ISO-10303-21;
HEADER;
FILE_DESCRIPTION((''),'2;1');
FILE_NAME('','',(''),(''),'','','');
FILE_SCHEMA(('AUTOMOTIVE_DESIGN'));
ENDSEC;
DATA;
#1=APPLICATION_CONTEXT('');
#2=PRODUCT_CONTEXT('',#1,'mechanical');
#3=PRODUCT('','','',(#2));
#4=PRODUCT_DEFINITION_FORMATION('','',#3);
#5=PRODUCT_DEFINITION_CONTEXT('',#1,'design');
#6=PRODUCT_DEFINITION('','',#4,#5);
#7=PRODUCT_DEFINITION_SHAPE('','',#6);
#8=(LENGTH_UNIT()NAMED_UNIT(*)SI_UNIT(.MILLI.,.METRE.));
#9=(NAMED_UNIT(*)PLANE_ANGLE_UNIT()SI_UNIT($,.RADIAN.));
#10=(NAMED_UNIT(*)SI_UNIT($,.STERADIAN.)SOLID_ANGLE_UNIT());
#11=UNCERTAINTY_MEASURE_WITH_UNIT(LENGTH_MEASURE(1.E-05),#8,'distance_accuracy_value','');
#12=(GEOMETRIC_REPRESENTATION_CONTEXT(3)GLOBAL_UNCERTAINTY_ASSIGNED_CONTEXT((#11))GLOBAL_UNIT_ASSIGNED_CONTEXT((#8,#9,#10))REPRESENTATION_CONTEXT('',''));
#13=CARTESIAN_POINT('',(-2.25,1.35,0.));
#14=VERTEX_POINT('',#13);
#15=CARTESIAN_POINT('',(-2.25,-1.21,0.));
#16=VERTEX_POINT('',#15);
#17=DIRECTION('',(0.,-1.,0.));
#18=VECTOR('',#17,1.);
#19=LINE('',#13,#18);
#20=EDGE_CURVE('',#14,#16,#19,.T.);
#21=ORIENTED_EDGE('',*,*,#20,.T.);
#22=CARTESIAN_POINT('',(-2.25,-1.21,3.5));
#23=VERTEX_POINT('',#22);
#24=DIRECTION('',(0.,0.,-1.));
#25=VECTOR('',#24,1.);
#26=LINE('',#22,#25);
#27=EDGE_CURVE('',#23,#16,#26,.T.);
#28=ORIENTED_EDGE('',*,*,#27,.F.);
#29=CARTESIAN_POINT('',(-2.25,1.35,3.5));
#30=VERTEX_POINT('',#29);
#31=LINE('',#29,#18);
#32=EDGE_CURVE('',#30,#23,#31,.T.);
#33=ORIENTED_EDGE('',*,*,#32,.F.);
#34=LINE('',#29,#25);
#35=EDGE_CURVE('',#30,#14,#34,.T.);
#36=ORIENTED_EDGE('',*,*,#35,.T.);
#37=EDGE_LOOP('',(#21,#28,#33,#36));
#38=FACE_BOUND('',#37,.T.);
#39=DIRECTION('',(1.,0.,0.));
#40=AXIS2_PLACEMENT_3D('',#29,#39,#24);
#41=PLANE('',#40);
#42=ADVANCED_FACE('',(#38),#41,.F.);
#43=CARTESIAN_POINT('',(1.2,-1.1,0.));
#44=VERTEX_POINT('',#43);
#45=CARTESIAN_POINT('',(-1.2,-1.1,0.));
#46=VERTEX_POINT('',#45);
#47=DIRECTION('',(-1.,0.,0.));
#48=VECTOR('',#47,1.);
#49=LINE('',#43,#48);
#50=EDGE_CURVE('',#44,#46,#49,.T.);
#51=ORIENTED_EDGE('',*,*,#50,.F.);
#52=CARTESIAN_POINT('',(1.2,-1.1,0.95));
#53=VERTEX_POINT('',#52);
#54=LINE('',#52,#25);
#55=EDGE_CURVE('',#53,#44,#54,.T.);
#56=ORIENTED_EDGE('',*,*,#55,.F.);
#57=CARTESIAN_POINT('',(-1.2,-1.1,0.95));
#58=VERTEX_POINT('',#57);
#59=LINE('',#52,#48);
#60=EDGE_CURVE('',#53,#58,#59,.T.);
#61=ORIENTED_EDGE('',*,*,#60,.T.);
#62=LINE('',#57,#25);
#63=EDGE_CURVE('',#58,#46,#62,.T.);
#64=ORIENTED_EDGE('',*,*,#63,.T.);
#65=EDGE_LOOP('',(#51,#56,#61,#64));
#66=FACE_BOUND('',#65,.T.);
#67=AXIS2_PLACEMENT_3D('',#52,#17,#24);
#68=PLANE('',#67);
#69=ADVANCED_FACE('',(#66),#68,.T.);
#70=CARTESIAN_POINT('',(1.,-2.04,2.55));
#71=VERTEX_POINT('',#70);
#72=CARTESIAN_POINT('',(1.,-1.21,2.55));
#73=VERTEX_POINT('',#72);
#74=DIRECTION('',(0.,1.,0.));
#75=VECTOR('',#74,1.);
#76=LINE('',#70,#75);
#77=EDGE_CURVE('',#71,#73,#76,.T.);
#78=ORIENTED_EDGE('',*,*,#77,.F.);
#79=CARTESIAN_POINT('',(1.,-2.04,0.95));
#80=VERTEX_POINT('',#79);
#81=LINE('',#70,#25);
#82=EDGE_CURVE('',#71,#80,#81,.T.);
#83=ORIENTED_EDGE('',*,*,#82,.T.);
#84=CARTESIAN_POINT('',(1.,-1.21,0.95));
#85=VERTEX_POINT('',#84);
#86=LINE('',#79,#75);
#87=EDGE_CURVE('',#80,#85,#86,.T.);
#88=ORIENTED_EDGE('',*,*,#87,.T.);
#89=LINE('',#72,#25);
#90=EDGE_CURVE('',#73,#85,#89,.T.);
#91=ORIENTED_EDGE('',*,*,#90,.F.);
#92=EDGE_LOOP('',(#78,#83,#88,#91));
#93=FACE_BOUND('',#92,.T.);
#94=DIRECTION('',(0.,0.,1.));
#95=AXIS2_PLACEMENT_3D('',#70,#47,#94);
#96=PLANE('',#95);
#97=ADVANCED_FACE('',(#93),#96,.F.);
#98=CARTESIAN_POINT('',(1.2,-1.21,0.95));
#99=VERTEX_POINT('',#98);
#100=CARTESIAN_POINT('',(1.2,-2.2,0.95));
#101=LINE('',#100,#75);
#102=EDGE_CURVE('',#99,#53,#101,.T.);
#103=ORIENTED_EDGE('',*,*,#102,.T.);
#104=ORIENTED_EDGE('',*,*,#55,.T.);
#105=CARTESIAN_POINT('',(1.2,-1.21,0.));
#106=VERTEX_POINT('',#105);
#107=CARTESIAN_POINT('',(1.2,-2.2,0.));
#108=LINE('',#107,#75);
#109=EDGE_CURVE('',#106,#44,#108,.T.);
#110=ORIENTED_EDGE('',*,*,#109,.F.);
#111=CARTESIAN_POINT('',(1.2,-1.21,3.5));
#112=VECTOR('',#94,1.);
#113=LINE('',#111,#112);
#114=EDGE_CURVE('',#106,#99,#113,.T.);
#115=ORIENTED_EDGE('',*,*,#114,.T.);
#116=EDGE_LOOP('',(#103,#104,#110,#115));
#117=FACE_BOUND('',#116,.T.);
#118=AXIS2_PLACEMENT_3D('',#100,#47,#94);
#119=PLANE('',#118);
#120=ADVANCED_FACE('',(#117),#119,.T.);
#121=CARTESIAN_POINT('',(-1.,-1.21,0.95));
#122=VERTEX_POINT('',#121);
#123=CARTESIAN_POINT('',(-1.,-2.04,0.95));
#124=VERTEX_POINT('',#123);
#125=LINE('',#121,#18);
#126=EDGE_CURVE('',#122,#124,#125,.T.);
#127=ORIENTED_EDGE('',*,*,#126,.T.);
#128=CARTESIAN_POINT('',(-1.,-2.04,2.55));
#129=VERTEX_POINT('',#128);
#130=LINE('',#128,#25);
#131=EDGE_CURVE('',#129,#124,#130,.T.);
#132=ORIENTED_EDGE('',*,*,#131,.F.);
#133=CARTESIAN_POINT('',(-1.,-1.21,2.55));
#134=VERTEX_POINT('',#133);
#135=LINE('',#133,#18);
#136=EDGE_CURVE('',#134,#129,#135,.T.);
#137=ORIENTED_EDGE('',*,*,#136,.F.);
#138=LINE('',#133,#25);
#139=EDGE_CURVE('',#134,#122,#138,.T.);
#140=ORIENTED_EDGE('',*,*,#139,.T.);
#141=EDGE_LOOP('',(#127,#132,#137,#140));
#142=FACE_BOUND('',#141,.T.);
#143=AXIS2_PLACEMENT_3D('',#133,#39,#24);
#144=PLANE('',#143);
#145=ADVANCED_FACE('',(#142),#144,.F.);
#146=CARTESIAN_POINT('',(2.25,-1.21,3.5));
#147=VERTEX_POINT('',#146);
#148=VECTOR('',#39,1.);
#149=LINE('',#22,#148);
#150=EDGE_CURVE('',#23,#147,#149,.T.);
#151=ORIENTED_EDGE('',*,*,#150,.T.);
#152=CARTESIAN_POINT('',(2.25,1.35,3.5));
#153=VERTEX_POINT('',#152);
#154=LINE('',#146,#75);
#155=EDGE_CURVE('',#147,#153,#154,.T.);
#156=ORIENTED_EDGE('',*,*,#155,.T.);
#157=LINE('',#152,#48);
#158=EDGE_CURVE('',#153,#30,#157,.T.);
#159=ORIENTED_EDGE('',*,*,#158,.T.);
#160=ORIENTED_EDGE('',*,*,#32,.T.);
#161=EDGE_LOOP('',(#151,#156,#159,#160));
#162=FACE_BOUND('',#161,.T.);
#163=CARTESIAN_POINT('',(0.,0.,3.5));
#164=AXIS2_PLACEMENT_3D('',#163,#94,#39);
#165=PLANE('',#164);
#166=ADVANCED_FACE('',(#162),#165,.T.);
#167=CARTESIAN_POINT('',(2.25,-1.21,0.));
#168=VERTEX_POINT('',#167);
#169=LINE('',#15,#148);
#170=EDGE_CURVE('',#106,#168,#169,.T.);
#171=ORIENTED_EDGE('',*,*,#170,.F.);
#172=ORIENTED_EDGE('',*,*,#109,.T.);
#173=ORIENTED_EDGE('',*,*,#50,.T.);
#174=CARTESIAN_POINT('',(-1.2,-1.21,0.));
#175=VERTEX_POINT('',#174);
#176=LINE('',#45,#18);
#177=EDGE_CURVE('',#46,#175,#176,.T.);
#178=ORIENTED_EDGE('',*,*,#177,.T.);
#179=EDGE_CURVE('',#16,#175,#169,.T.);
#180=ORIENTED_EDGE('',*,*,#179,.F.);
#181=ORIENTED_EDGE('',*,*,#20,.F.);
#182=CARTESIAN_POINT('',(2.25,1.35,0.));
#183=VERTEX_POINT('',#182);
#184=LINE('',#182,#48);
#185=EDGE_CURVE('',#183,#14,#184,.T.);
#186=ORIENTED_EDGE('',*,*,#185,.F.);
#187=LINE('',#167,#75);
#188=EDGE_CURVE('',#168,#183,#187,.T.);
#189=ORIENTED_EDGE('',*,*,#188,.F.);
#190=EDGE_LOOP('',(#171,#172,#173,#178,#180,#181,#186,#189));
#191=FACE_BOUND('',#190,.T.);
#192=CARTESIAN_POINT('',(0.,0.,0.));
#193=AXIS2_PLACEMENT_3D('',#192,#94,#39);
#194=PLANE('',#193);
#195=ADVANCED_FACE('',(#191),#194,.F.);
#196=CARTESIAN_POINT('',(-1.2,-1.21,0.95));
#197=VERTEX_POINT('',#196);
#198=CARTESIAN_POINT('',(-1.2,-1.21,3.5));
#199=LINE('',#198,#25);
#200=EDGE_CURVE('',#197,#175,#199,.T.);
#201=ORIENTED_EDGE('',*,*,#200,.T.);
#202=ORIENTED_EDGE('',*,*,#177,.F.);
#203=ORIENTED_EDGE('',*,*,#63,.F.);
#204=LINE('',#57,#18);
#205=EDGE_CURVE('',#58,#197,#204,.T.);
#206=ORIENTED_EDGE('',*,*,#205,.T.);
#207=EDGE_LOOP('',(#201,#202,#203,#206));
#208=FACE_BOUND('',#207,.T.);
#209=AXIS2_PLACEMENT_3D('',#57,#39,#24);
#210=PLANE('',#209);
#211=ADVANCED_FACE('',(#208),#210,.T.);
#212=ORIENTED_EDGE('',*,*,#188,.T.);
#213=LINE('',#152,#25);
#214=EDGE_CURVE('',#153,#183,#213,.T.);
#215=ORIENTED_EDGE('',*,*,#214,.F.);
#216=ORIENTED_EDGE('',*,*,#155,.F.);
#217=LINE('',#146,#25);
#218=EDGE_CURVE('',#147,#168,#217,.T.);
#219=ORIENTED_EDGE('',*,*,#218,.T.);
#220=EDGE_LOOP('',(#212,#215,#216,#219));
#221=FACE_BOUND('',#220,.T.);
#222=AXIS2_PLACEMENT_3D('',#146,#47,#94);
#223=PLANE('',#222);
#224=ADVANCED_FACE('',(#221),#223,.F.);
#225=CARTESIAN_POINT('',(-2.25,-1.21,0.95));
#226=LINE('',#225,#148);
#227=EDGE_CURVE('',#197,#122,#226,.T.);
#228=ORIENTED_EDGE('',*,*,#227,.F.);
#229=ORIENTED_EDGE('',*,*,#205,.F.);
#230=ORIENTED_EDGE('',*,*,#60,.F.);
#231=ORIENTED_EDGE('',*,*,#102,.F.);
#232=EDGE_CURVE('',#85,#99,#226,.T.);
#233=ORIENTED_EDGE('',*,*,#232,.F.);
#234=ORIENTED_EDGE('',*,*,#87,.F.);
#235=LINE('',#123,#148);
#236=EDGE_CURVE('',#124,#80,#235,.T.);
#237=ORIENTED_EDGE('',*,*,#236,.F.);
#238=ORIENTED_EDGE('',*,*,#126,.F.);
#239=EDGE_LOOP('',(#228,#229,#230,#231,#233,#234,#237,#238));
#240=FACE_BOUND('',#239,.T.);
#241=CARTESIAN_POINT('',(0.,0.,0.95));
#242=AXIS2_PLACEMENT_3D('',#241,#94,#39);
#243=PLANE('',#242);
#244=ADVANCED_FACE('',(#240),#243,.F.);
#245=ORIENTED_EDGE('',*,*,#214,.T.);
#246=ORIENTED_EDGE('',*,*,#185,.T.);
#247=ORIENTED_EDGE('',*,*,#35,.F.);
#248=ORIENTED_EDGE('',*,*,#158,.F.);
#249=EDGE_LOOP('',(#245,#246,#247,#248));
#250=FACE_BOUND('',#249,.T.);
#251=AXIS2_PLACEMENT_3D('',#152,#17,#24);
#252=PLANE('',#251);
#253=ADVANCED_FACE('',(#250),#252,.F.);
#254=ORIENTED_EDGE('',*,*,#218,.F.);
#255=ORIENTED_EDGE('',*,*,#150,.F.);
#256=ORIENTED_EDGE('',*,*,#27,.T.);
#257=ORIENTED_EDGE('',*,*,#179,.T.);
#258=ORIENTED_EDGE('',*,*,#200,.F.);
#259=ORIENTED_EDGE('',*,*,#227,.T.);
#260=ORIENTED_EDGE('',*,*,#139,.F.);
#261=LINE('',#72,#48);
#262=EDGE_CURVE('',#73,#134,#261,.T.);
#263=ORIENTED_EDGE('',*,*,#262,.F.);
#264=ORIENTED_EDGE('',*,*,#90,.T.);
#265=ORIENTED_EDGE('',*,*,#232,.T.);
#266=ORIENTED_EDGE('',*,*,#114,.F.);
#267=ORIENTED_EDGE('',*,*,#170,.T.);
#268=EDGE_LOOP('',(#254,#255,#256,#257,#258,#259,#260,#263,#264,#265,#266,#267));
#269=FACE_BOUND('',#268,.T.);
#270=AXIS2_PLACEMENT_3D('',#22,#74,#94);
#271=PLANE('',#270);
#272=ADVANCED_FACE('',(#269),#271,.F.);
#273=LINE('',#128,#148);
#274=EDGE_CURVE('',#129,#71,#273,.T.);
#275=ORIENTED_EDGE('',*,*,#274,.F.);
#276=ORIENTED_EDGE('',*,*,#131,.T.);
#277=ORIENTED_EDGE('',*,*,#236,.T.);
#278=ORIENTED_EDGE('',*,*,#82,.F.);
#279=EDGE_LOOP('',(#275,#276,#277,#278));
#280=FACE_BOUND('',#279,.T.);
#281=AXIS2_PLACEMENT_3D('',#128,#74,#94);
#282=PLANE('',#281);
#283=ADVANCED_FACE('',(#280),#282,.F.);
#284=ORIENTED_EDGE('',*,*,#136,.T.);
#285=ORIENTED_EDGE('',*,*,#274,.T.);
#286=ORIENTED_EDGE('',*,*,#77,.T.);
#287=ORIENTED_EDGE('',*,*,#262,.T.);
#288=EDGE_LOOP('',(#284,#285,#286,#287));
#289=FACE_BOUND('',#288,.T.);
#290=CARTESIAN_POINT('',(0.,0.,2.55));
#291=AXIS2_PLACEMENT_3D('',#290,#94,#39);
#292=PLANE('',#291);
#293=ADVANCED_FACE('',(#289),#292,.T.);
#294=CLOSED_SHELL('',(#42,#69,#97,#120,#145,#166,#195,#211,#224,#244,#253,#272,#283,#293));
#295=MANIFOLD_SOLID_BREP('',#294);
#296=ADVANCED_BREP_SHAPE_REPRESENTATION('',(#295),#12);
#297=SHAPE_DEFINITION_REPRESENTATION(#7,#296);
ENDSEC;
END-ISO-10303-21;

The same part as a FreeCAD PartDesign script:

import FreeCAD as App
import Part
import Sketcher

V = App.Vector

doc = App.newDocument("Part")
params = doc.addObject("Spreadsheet::Sheet", "Params")
for row, (alias, value) in enumerate([
    ("sketch1_width", "4.5 mm"),
    ("sketch1_height", "2.56 mm"),
    ("pad1_length", "3.5 mm"),
    ("sketch2_width", "2 mm"),
    ("sketch2_height", "0.83 mm"),
    ("pad2_length", "2.55 mm"),
    ("sketch3_width", "2.4 mm"),
    ("sketch3_height", "1.1 mm"),
    ("pocket1_length", "0.95 mm"),
], start=1):
    params.set(f"A{row}", alias)
    params.set(f"B{row}", "=" + value)
    params.setAlias(f"B{row}", alias)

body = doc.addObject("PartDesign::Body", "Body")

sketch1 = body.newObject("Sketcher::SketchObject", "Sketch")
sketch1.AttachmentSupport = (doc.getObject("XY_Plane"), [""])
sketch1.MapMode = "FlatFace"
sketch1.addGeometry(Part.LineSegment(V(-2.2, 1.4, 0), V(-2.2, -1.2, 0)), False)
sketch1.addGeometry(Part.LineSegment(V(-2.2, -1.2, 0), V(2.2, -1.2, 0)), False)
sketch1.addGeometry(Part.LineSegment(V(2.2, -1.2, 0), V(2.2, 1.4, 0)), False)
sketch1.addGeometry(Part.LineSegment(V(2.2, 1.4, 0), V(-2.2, 1.4, 0)), False)
sketch1.addConstraint(Sketcher.Constraint("Coincident", 0, 2, 1, 1))
sketch1.addConstraint(Sketcher.Constraint("Coincident", 1, 2, 2, 1))
sketch1.addConstraint(Sketcher.Constraint("Coincident", 2, 2, 3, 1))
sketch1.addConstraint(Sketcher.Constraint("Coincident", 3, 2, 0, 1))
sketch1.addConstraint(Sketcher.Constraint("Vertical", 0))
sketch1.addConstraint(Sketcher.Constraint("Horizontal", 1))
sketch1.addConstraint(Sketcher.Constraint("Vertical", 2))
sketch1.addConstraint(Sketcher.Constraint("Horizontal", 3))
sketch1.addConstraint(Sketcher.Constraint("DistanceX", 1, 1, 1, 2, 4.5))
sketch1.addConstraint(Sketcher.Constraint("DistanceY", 0, 2, 0, 1, 2.56))
sketch1.addConstraint(Sketcher.Constraint("DistanceX", 0, 2, -1, 1, 2.25))
sketch1.addConstraint(Sketcher.Constraint("DistanceY", 0, 2, -1, 1, 1.21))
sketch1.setExpression("Constraints[8]", "Params.sketch1_width")
sketch1.setExpression("Constraints[9]", "Params.sketch1_height")
pad1 = body.newObject("PartDesign::Pad", "Pad")
pad1.Profile = sketch1
pad1.setExpression("Length", "Params.pad1_length")

sketch2 = body.newObject("Sketcher::SketchObject", "Sketch001")
sketch2.AttachmentSupport = (doc.getObject("XY_Plane"), [""])
sketch2.MapMode = "FlatFace"
sketch2.addGeometry(Part.LineSegment(V(-1, -1.2, 0), V(-1, -2, 0)), False)
sketch2.addGeometry(Part.LineSegment(V(-1, -2, 0), V(1, -2, 0)), False)
sketch2.addGeometry(Part.LineSegment(V(1, -2, 0), V(1, -1.2, 0)), False)
sketch2.addGeometry(Part.LineSegment(V(1, -1.2, 0), V(-1, -1.2, 0)), False)
sketch2.addConstraint(Sketcher.Constraint("Coincident", 0, 2, 1, 1))
sketch2.addConstraint(Sketcher.Constraint("Coincident", 1, 2, 2, 1))
sketch2.addConstraint(Sketcher.Constraint("Coincident", 2, 2, 3, 1))
sketch2.addConstraint(Sketcher.Constraint("Coincident", 3, 2, 0, 1))
sketch2.addConstraint(Sketcher.Constraint("Vertical", 0))
sketch2.addConstraint(Sketcher.Constraint("Horizontal", 1))
sketch2.addConstraint(Sketcher.Constraint("Vertical", 2))
sketch2.addConstraint(Sketcher.Constraint("Horizontal", 3))
sketch2.addConstraint(Sketcher.Constraint("DistanceX", 1, 1, 1, 2, 2.0))
sketch2.addConstraint(Sketcher.Constraint("DistanceX", 0, 2, -1, 1, 1.0))
sketch2.addConstraint(Sketcher.Constraint("DistanceY", 0, 2, 0, 1, 0.83))
sketch2.addConstraint(Sketcher.Constraint("DistanceY", 0, 2, -1, 1, 2.04))
sketch2.setExpression("Constraints[8]", "Params.sketch2_width")
sketch2.setExpression("Constraints[10]", "Params.sketch2_height")
pad2 = body.newObject("PartDesign::Pad", "Pad001")
pad2.Profile = sketch2
pad2.setExpression("Length", "Params.pad2_length")

sketch3 = body.newObject("Sketcher::SketchObject", "Sketch002")
sketch3.AttachmentSupport = (doc.getObject("XY_Plane"), [""])
sketch3.MapMode = "FlatFace"
sketch3.addGeometry(Part.LineSegment(V(-1.2, -1.1, 0), V(-1.2, -2.2, 0)), False)
sketch3.addGeometry(Part.LineSegment(V(-1.2, -2.2, 0), V(1.2, -2.2, 0)), False)
sketch3.addGeometry(Part.LineSegment(V(1.2, -2.2, 0), V(1.2, -1.1, 0)), False)
sketch3.addGeometry(Part.LineSegment(V(1.2, -1.1, 0), V(-1.2, -1.1, 0)), False)
sketch3.addConstraint(Sketcher.Constraint("Coincident", 0, 2, 1, 1))
sketch3.addConstraint(Sketcher.Constraint("Coincident", 1, 2, 2, 1))
sketch3.addConstraint(Sketcher.Constraint("Coincident", 2, 2, 3, 1))
sketch3.addConstraint(Sketcher.Constraint("Coincident", 3, 2, 0, 1))
sketch3.addConstraint(Sketcher.Constraint("Vertical", 0))
sketch3.addConstraint(Sketcher.Constraint("Horizontal", 1))
sketch3.addConstraint(Sketcher.Constraint("Vertical", 2))
sketch3.addConstraint(Sketcher.Constraint("Horizontal", 3))
sketch3.addConstraint(Sketcher.Constraint("DistanceX", 1, 1, 1, 2, 2.4))
sketch3.addConstraint(Sketcher.Constraint("DistanceY", 0, 2, 0, 1, 1.1))
sketch3.addConstraint(Sketcher.Constraint("DistanceX", 0, 2, -1, 1, 1.2))
sketch3.addConstraint(Sketcher.Constraint("DistanceY", 0, 2, -1, 1, 2.2))
sketch3.setExpression("Constraints[8]", "Params.sketch3_width")
sketch3.setExpression("Constraints[9]", "Params.sketch3_height")
pocket1 = body.newObject("PartDesign::Pocket", "Pocket")
pocket1.Profile = sketch3
pocket1.setExpression("Length", "Params.pocket1_length")
pocket1.Reversed = True

doc.recompute()
